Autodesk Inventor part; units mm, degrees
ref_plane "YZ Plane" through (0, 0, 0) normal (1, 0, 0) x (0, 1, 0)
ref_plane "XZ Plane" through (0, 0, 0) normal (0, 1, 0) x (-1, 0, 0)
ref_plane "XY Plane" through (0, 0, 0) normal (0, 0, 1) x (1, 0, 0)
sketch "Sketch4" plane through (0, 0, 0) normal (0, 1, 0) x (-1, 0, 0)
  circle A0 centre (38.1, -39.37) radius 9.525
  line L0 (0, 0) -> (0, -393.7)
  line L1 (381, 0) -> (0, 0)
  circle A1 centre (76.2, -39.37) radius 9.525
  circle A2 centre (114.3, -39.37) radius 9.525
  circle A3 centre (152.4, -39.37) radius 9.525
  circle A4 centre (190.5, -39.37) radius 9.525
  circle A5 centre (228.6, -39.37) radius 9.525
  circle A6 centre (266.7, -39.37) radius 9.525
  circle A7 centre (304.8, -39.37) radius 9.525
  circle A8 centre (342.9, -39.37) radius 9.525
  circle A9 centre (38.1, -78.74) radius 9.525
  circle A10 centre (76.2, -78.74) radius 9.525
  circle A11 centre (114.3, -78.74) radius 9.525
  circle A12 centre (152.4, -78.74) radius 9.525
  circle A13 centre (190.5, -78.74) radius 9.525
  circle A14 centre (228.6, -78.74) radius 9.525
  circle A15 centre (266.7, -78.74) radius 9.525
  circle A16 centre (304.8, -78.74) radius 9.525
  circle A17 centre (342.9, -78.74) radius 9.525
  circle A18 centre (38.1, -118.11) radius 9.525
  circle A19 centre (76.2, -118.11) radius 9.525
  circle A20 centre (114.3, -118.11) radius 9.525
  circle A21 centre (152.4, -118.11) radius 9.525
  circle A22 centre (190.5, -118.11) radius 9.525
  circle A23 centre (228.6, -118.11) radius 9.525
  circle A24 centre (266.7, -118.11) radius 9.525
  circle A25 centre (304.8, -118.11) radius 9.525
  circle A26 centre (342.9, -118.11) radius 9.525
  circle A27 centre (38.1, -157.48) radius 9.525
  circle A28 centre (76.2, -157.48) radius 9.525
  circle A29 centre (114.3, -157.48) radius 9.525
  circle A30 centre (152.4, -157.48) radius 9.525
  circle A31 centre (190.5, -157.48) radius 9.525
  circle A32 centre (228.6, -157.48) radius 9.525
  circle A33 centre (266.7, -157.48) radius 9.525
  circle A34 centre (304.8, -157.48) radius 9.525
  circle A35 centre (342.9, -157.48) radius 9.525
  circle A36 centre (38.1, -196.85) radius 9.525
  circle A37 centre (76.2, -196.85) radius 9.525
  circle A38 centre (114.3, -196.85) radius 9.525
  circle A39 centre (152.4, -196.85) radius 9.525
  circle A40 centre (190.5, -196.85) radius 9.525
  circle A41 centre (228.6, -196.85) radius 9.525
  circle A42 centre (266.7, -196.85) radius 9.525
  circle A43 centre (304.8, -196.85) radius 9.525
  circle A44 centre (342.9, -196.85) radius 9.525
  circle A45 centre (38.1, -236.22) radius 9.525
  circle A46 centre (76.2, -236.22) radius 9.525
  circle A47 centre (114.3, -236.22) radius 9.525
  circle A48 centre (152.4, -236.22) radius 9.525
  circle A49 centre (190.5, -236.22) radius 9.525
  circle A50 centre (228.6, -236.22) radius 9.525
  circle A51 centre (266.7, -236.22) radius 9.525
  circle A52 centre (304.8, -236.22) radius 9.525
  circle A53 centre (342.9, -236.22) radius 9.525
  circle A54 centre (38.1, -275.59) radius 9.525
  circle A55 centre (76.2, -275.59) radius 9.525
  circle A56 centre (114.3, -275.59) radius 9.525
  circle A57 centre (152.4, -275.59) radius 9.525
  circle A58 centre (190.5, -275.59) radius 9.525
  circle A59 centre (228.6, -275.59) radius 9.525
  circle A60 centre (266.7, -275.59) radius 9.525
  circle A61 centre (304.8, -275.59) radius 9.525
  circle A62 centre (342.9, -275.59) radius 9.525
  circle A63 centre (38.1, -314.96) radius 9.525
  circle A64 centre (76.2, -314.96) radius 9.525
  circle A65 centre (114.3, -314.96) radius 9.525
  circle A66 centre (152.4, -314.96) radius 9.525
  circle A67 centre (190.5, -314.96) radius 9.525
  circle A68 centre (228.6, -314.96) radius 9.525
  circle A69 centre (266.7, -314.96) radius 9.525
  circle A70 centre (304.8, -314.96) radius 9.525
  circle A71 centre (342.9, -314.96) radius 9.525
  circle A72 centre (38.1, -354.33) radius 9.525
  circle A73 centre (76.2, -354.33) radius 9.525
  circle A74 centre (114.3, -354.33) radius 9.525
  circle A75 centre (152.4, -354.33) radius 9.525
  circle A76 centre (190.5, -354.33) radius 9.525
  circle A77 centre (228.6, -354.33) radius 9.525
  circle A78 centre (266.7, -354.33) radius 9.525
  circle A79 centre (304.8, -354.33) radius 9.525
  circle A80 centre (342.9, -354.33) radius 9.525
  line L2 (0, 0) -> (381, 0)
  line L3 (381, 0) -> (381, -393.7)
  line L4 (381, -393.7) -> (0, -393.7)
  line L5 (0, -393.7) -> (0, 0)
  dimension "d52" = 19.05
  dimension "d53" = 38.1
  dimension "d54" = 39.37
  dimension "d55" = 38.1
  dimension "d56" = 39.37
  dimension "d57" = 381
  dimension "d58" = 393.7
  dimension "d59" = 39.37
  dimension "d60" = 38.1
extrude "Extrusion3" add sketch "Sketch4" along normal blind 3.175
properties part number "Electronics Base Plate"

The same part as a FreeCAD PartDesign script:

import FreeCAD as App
import Part
import Sketcher

V = App.Vector
Q = App.Units.Quantity

doc = App.newDocument("Part")
body = doc.addObject("PartDesign::Body", "Body")

# Sketch on XZ plane
sketch1 = doc.addObject("Sketcher::SketchObject", "Sketch")
body.addObject(sketch1)
sketch1.AttachmentSupport = (doc.XZ_Plane, [""])
sketch1.MapMode = "FlatFace"
sketch1.addGeometry(Part.LineSegment(V(-381, 0, 0), V(0, 0, 0)), False)
sketch1.addGeometry(Part.LineSegment(V(0, 0, 0), V(0, -394, 0)), False)
sketch1.addGeometry(Part.LineSegment(V(0, -394, 0), V(-381, -394, 0)), False)
sketch1.addGeometry(Part.LineSegment(V(-381, -394, 0), V(-381, 0, 0)), False)
sketch1.addGeometry(Part.Circle(V(-38, -354, 0), V(0, 0, 1), 10), False)
sketch1.addGeometry(Part.Circle(V(-76, -354, 0), V(0, 0, 1), 10), False)
sketch1.addGeometry(Part.Circle(V(-38, -315, 0), V(0, 0, 1), 10), False)
sketch1.addGeometry(Part.Circle(V(-76, -315, 0), V(0, 0, 1), 10), False)
sketch1.addGeometry(Part.Circle(V(-114, -354, 0), V(0, 0, 1), 10), False)
sketch1.addGeometry(Part.Circle(V(-152, -354, 0), V(0, 0, 1), 10), False)
sketch1.addGeometry(Part.Circle(V(-114, -315, 0), V(0, 0, 1), 10), False)
sketch1.addGeometry(Part.Circle(V(-152, -315, 0), V(0, 0, 1), 10), False)
sketch1.addGeometry(Part.Circle(V(-38, -276, 0), V(0, 0, 1), 10), False)
sketch1.addGeometry(Part.Circle(V(-76, -276, 0), V(0, 0, 1), 10), False)
sketch1.addGeometry(Part.Circle(V(-38, -236, 0), V(0, 0, 1), 10), False)
sketch1.addGeometry(Part.Circle(V(-76, -236, 0), V(0, 0, 1), 10), False)
sketch1.addGeometry(Part.Circle(V(-114, -276, 0), V(0, 0, 1), 10), False)
sketch1.addGeometry(Part.Circle(V(-152, -276, 0), V(0, 0, 1), 10), False)
sketch1.addGeometry(Part.Circle(V(-114, -236, 0), V(0, 0, 1), 10), False)
sketch1.addGeometry(Part.Circle(V(-152, -236, 0), V(0, 0, 1), 10), False)
sketch1.addGeometry(Part.Circle(V(-190, -354, 0), V(0, 0, 1), 10), False)
sketch1.addGeometry(Part.Circle(V(-229, -354, 0), V(0, 0, 1), 10), False)
sketch1.addGeometry(Part.Circle(V(-267, -354, 0), V(0, 0, 1), 10), False)
sketch1.addGeometry(Part.Circle(V(-190, -315, 0), V(0, 0, 1), 10), False)
sketch1.addGeometry(Part.Circle(V(-229, -315, 0), V(0, 0, 1), 10), False)
sketch1.addGeometry(Part.Circle(V(-267, -315, 0), V(0, 0, 1), 10), False)
sketch1.addGeometry(Part.Circle(V(-305, -354, 0), V(0, 0, 1), 10), False)
sketch1.addGeometry(Part.Circle(V(-343, -354, 0), V(0, 0, 1), 10), False)
sketch1.addGeometry(Part.Circle(V(-305, -315, 0), V(0, 0, 1), 10), False)
sketch1.addGeometry(Part.Circle(V(-343, -315, 0), V(0, 0, 1), 10), False)
sketch1.addGeometry(Part.Circle(V(-190, -276, 0), V(0, 0, 1), 10), False)
sketch1.addGeometry(Part.Circle(V(-229, -276, 0), V(0, 0, 1), 10), False)
sketch1.addGeometry(Part.Circle(V(-267, -276, 0), V(0, 0, 1), 10), False)
sketch1.addGeometry(Part.Circle(V(-190, -236, 0), V(0, 0, 1), 10), False)
sketch1.addGeometry(Part.Circle(V(-229, -236, 0), V(0, 0, 1), 10), False)
sketch1.addGeometry(Part.Circle(V(-267, -236, 0), V(0, 0, 1), 10), False)
sketch1.addGeometry(Part.Circle(V(-305, -276, 0), V(0, 0, 1), 10), False)
sketch1.addGeometry(Part.Circle(V(-343, -276, 0), V(0, 0, 1), 10), False)
sketch1.addGeometry(Part.Circle(V(-305, -236, 0), V(0, 0, 1), 10), False)
sketch1.addGeometry(Part.Circle(V(-343, -236, 0), V(0, 0, 1), 10), False)
sketch1.addGeometry(Part.Circle(V(-38, -197, 0), V(0, 0, 1), 10), False)
sketch1.addGeometry(Part.Circle(V(-38, -157, 0), V(0, 0, 1), 10), False)
sketch1.addGeometry(Part.Circle(V(-76, -197, 0), V(0, 0, 1), 10), False)
sketch1.addGeometry(Part.Circle(V(-76, -157, 0), V(0, 0, 1), 10), False)
sketch1.addGeometry(Part.Circle(V(-38, -118, 0), V(0, 0, 1), 10), False)
sketch1.addGeometry(Part.Circle(V(-76, -118, 0), V(0, 0, 1), 10), False)
sketch1.addGeometry(Part.Circle(V(-114, -197, 0), V(0, 0, 1), 10), False)
sketch1.addGeometry(Part.Circle(V(-114, -157, 0), V(0, 0, 1), 10), False)
sketch1.addGeometry(Part.Circle(V(-152, -197, 0), V(0, 0, 1), 10), False)
sketch1.addGeometry(Part.Circle(V(-152, -157, 0), V(0, 0, 1), 10), False)
sketch1.addGeometry(Part.Circle(V(-114, -118, 0), V(0, 0, 1), 10), False)
sketch1.addGeometry(Part.Circle(V(-152, -118, 0), V(0, 0, 1), 10), False)
sketch1.addGeometry(Part.Circle(V(-38, -79, 0), V(0, 0, 1), 10), False)
sketch1.addGeometry(Part.Circle(V(-76, -79, 0), V(0, 0, 1), 10), False)
sketch1.addGeometry(Part.Circle(V(-38, -39, 0), V(0, 0, 1), 10), False)
sketch1.addGeometry(Part.Circle(V(-76, -39, 0), V(0, 0, 1), 10), False)
sketch1.addGeometry(Part.Circle(V(-114, -79, 0), V(0, 0, 1), 10), False)
sketch1.addGeometry(Part.Circle(V(-152, -79, 0), V(0, 0, 1), 10), False)
sketch1.addGeometry(Part.Circle(V(-114, -39, 0), V(0, 0, 1), 10), False)
sketch1.addGeometry(Part.Circle(V(-152, -39, 0), V(0, 0, 1), 10), False)
sketch1.addGeometry(Part.Circle(V(-190, -197, 0), V(0, 0, 1), 10), False)
sketch1.addGeometry(Part.Circle(V(-229, -197, 0), V(0, 0, 1), 10), False)
sketch1.addGeometry(Part.Circle(V(-190, -157, 0), V(0, 0, 1), 10), False)
sketch1.addGeometry(Part.Circle(V(-229, -157, 0), V(0, 0, 1), 10), False)
sketch1.addGeometry(Part.Circle(V(-267, -197, 0), V(0, 0, 1), 10), False)
sketch1.addGeometry(Part.Circle(V(-267, -157, 0), V(0, 0, 1), 10), False)
sketch1.addGeometry(Part.Circle(V(-190, -118, 0), V(0, 0, 1), 10), False)
sketch1.addGeometry(Part.Circle(V(-229, -118, 0), V(0, 0, 1), 10), False)
sketch1.addGeometry(Part.Circle(V(-267, -118, 0), V(0, 0, 1), 10), False)
sketch1.addGeometry(Part.Circle(V(-305, -197, 0), V(0, 0, 1), 10), False)
sketch1.addGeometry(Part.Circle(V(-305, -157, 0), V(0, 0, 1), 10), False)
sketch1.addGeometry(Part.Circle(V(-343, -197, 0), V(0, 0, 1), 10), False)
sketch1.addGeometry(Part.Circle(V(-343, -157, 0), V(0, 0, 1), 10), False)
sketch1.addGeometry(Part.Circle(V(-305, -118, 0), V(0, 0, 1), 10), False)
sketch1.addGeometry(Part.Circle(V(-343, -118, 0), V(0, 0, 1), 10), False)
sketch1.addGeometry(Part.Circle(V(-190, -79, 0), V(0, 0, 1), 10), False)
sketch1.addGeometry(Part.Circle(V(-229, -79, 0), V(0, 0, 1), 10), False)
sketch1.addGeometry(Part.Circle(V(-267, -79, 0), V(0, 0, 1), 10), False)
sketch1.addGeometry(Part.Circle(V(-190, -39, 0), V(0, 0, 1), 10), False)
sketch1.addGeometry(Part.Circle(V(-229, -39, 0), V(0, 0, 1), 10), False)
sketch1.addGeometry(Part.Circle(V(-267, -39, 0), V(0, 0, 1), 10), False)
sketch1.addGeometry(Part.Circle(V(-305, -79, 0), V(0, 0, 1), 10), False)
sketch1.addGeometry(Part.Circle(V(-343, -79, 0), V(0, 0, 1), 10), False)
sketch1.addGeometry(Part.Circle(V(-305, -39, 0), V(0, 0, 1), 10), False)
sketch1.addGeometry(Part.Circle(V(-343, -39, 0), V(0, 0, 1), 10), False)
sketch1.addConstraint(Sketcher.Constraint("Coincident", 0, 2, 1, 1))
sketch1.addConstraint(Sketcher.Constraint("Coincident", 1, 2, 2, 1))
sketch1.addConstraint(Sketcher.Constraint("Coincident", 2, 2, 3, 1))
sketch1.addConstraint(Sketcher.Constraint("Coincident", 3, 2, 0, 1))
sketch1.addConstraint(Sketcher.Constraint("Horizontal", 0))
sketch1.addConstraint(Sketcher.Constraint("Vertical", 1))
sketch1.addConstraint(Sketcher.Constraint("Horizontal", 2))
sketch1.addConstraint(Sketcher.Constraint("Vertical", 3))
sketch1.addConstraint(Sketcher.Constraint("Coincident", 0, 2, -1, 1))
sketch1.addConstraint(Sketcher.Constraint("Equal", 4, 5))
sketch1.addConstraint(Sketcher.Constraint("Equal", 5, 6))
sketch1.addConstraint(Sketcher.Constraint("Equal", 6, 7))
sketch1.addConstraint(Sketcher.Constraint("Equal", 7, 8))
sketch1.addConstraint(Sketcher.Constraint("Equal", 8, 9))
sketch1.addConstraint(Sketcher.Constraint("Equal", 9, 10))
sketch1.addConstraint(Sketcher.Constraint("Equal", 10, 11))
sketch1.addConstraint(Sketcher.Constraint("Equal", 11, 12))
sketch1.addConstraint(Sketcher.Constraint("Equal", 12, 13))
sketch1.addConstraint(Sketcher.Constraint("Equal", 13, 14))
sketch1.addConstraint(Sketcher.Constraint("Equal", 14, 15))
sketch1.addConstraint(Sketcher.Constraint("Equal", 15, 16))
sketch1.addConstraint(Sketcher.Constraint("Equal", 16, 17))
sketch1.addConstraint(Sketcher.Constraint("Equal", 17, 18))
sketch1.addConstraint(Sketcher.Constraint("Equal", 18, 19))
sketch1.addConstraint(Sketcher.Constraint("Equal", 19, 20))
sketch1.addConstraint(Sketcher.Constraint("Equal", 20, 21))
sketch1.addConstraint(Sketcher.Constraint("Equal", 21, 22))
sketch1.addConstraint(Sketcher.Constraint("Equal", 22, 23))
sketch1.addConstraint(Sketcher.Constraint("Equal", 23, 24))
sketch1.addConstraint(Sketcher.Constraint("Equal", 24, 25))
sketch1.addConstraint(Sketcher.Constraint("Equal", 25, 26))
sketch1.addConstraint(Sketcher.Constraint("Equal", 26, 27))
sketch1.addConstraint(Sketcher.Constraint("Equal", 27, 28))
sketch1.addConstraint(Sketcher.Constraint("Equal", 28, 29))
sketch1.addConstraint(Sketcher.Constraint("Equal", 29, 30))
sketch1.addConstraint(Sketcher.Constraint("Equal", 30, 31))
sketch1.addConstraint(Sketcher.Constraint("Equal", 31, 32))
sketch1.addConstraint(Sketcher.Constraint("Equal", 32, 33))
sketch1.addConstraint(Sketcher.Constraint("Equal", 33, 34))
sketch1.addConstraint(Sketcher.Constraint("Equal", 34, 35))
sketch1.addConstraint(Sketcher.Constraint("Equal", 35, 36))
sketch1.addConstraint(Sketcher.Constraint("Equal", 36, 37))
sketch1.addConstraint(Sketcher.Constraint("Equal", 37, 38))
sketch1.addConstraint(Sketcher.Constraint("Equal", 38, 39))
sketch1.addConstraint(Sketcher.Constraint("Equal", 39, 40))
sketch1.addConstraint(Sketcher.Constraint("Equal", 40, 41))
sketch1.addConstraint(Sketcher.Constraint("Equal", 41, 42))
sketch1.addConstraint(Sketcher.Constraint("Equal", 42, 43))
sketch1.addConstraint(Sketcher.Constraint("Equal", 43, 44))
sketch1.addConstraint(Sketcher.Constraint("Equal", 44, 45))
sketch1.addConstraint(Sketcher.Constraint("Equal", 45, 46))
sketch1.addConstraint(Sketcher.Constraint("Equal", 46, 47))
sketch1.addConstraint(Sketcher.Constraint("Equal", 47, 48))
sketch1.addConstraint(Sketcher.Constraint("Equal", 48, 49))
sketch1.addConstraint(Sketcher.Constraint("Equal", 49, 50))
sketch1.addConstraint(Sketcher.Constraint("Equal", 50, 51))
sketch1.addConstraint(Sketcher.Constraint("Equal", 51, 52))
sketch1.addConstraint(Sketcher.Constraint("Equal", 52, 53))
sketch1.addConstraint(Sketcher.Constraint("Equal", 53, 54))
sketch1.addConstraint(Sketcher.Constraint("Equal", 54, 55))
sketch1.addConstraint(Sketcher.Constraint("Equal", 55, 56))
sketch1.addConstraint(Sketcher.Constraint("Equal", 56, 57))
sketch1.addConstraint(Sketcher.Constraint("Equal", 57, 58))
sketch1.addConstraint(Sketcher.Constraint("Equal", 58, 59))
sketch1.addConstraint(Sketcher.Constraint("Equal", 59, 60))
sketch1.addConstraint(Sketcher.Constraint("Equal", 60, 61))
sketch1.addConstraint(Sketcher.Constraint("Equal", 61, 62))
sketch1.addConstraint(Sketcher.Constraint("Equal", 62, 63))
sketch1.addConstraint(Sketcher.Constraint("Equal", 63, 64))
sketch1.addConstraint(Sketcher.Constraint("Equal", 64, 65))
sketch1.addConstraint(Sketcher.Constraint("Equal", 65, 66))
sketch1.addConstraint(Sketcher.Constraint("Equal", 66, 67))
sketch1.addConstraint(Sketcher.Constraint("Equal", 67, 68))
sketch1.addConstraint(Sketcher.Constraint("Equal", 68, 69))
sketch1.addConstraint(Sketcher.Constraint("Equal", 69, 70))
sketch1.addConstraint(Sketcher.Constraint("Equal", 70, 71))
sketch1.addConstraint(Sketcher.Constraint("Equal", 71, 72))
sketch1.addConstraint(Sketcher.Constraint("Equal", 72, 73))
sketch1.addConstraint(Sketcher.Constraint("Equal", 73, 74))
sketch1.addConstraint(Sketcher.Constraint("Equal", 74, 75))
sketch1.addConstraint(Sketcher.Constraint("Equal", 75, 76))
sketch1.addConstraint(Sketcher.Constraint("Equal", 76, 77))
sketch1.addConstraint(Sketcher.Constraint("Equal", 77, 78))
sketch1.addConstraint(Sketcher.Constraint("Equal", 78, 79))
sketch1.addConstraint(Sketcher.Constraint("Equal", 79, 80))
sketch1.addConstraint(Sketcher.Constraint("Equal", 80, 81))
sketch1.addConstraint(Sketcher.Constraint("Equal", 81, 82))
sketch1.addConstraint(Sketcher.Constraint("Equal", 82, 83))
sketch1.addConstraint(Sketcher.Constraint("Equal", 83, 84))
sketch1.addConstraint(Sketcher.Constraint("Horizontal", 4, 3, 5, 3))
sketch1.addConstraint(Sketcher.Constraint("Horizontal", 6, 3, 7, 3))
sketch1.addConstraint(Sketcher.Constraint("Horizontal", 5, 3, 8, 3))
sketch1.addConstraint(Sketcher.Constraint("Horizontal", 8, 3, 9, 3))
sketch1.addConstraint(Sketcher.Constraint("Horizontal", 7, 3, 10, 3))
sketch1.addConstraint(Sketcher.Constraint("Horizontal", 10, 3, 11, 3))
sketch1.addConstraint(Sketcher.Constraint("Horizontal", 12, 3, 13, 3))
sketch1.addConstraint(Sketcher.Constraint("Horizontal", 14, 3, 15, 3))
sketch1.addConstraint(Sketcher.Constraint("Horizontal", 13, 3, 16, 3))
sketch1.addConstraint(Sketcher.Constraint("Horizontal", 16, 3, 17, 3))
sketch1.addConstraint(Sketcher.Constraint("Horizontal", 15, 3, 18, 3))
sketch1.addConstraint(Sketcher.Constraint("Horizontal", 18, 3, 19, 3))
sketch1.addConstraint(Sketcher.Constraint("Horizontal", 9, 3, 20, 3))
sketch1.addConstraint(Sketcher.Constraint("Horizontal", 20, 3, 21, 3))
sketch1.addConstraint(Sketcher.Constraint("Horizontal", 21, 3, 22, 3))
sketch1.addConstraint(Sketcher.Constraint("Horizontal", 11, 3, 23, 3))
sketch1.addConstraint(Sketcher.Constraint("Horizontal", 23, 3, 24, 3))
sketch1.addConstraint(Sketcher.Constraint("Horizontal", 24, 3, 25, 3))
sketch1.addConstraint(Sketcher.Constraint("Horizontal", 22, 3, 26, 3))
sketch1.addConstraint(Sketcher.Constraint("Horizontal", 26, 3, 27, 3))
sketch1.addConstraint(Sketcher.Constraint("Horizontal", 25, 3, 28, 3))
sketch1.addConstraint(Sketcher.Constraint("Horizontal", 28, 3, 29, 3))
sketch1.addConstraint(Sketcher.Constraint("Horizontal", 17, 3, 30, 3))
sketch1.addConstraint(Sketcher.Constraint("Horizontal", 30, 3, 31, 3))
sketch1.addConstraint(Sketcher.Constraint("Horizontal", 31, 3, 32, 3))
sketch1.addConstraint(Sketcher.Constraint("Horizontal", 19, 3, 33, 3))
sketch1.addConstraint(Sketcher.Constraint("Horizontal", 33, 3, 34, 3))
sketch1.addConstraint(Sketcher.Constraint("Horizontal", 34, 3, 35, 3))
sketch1.addConstraint(Sketcher.Constraint("Horizontal", 32, 3, 36, 3))
sketch1.addConstraint(Sketcher.Constraint("Horizontal", 36, 3, 37, 3))
sketch1.addConstraint(Sketcher.Constraint("Horizontal", 35, 3, 38, 3))
sketch1.addConstraint(Sketcher.Constraint("Horizontal", 38, 3, 39, 3))
sketch1.addConstraint(Sketcher.Constraint("Horizontal", 40, 3, 42, 3))
sketch1.addConstraint(Sketcher.Constraint("Horizontal", 41, 3, 43, 3))
sketch1.addConstraint(Sketcher.Constraint("Horizontal", 44, 3, 45, 3))
sketch1.addConstraint(Sketcher.Constraint("Horizontal", 42, 3, 46, 3))
sketch1.addConstraint(Sketcher.Constraint("Horizontal", 43, 3, 47, 3))
sketch1.addConstraint(Sketcher.Constraint("Horizontal", 46, 3, 48, 3))
sketch1.addConstraint(Sketcher.Constraint("Horizontal", 47, 3, 49, 3))
sketch1.addConstraint(Sketcher.Constraint("Horizontal", 45, 3, 50, 3))
sketch1.addConstraint(Sketcher.Constraint("Horizontal", 50, 3, 51, 3))
sketch1.addConstraint(Sketcher.Constraint("Horizontal", 52, 3, 53, 3))
sketch1.addConstraint(Sketcher.Constraint("Horizontal", 54, 3, 55, 3))
sketch1.addConstraint(Sketcher.Constraint("Horizontal", 53, 3, 56, 3))
sketch1.addConstraint(Sketcher.Constraint("Horizontal", 56, 3, 57, 3))
sketch1.addConstraint(Sketcher.Constraint("Horizontal", 55, 3, 58, 3))
sketch1.addConstraint(Sketcher.Constraint("Horizontal", 58, 3, 59, 3))
sketch1.addConstraint(Sketcher.Constraint("Horizontal", 48, 3, 60, 3))
sketch1.addConstraint(Sketcher.Constraint("Horizontal", 60, 3, 61, 3))
sketch1.addConstraint(Sketcher.Constraint("Horizontal", 49, 3, 62, 3))
sketch1.addConstraint(Sketcher.Constraint("Horizontal", 62, 3, 63, 3))
sketch1.addConstraint(Sketcher.Constraint("Horizontal", 61, 3, 64, 3))
sketch1.addConstraint(Sketcher.Constraint("Horizontal", 63, 3, 65, 3))
sketch1.addConstraint(Sketcher.Constraint("Horizontal", 51, 3, 66, 3))
sketch1.addConstraint(Sketcher.Constraint("Horizontal", 66, 3, 67, 3))
sketch1.addConstraint(Sketcher.Constraint("Horizontal", 67, 3, 68, 3))
sketch1.addConstraint(Sketcher.Constraint("Horizontal", 64, 3, 69, 3))
sketch1.addConstraint(Sketcher.Constraint("Horizontal", 65, 3, 70, 3))
sketch1.addConstraint(Sketcher.Constraint("Horizontal", 69, 3, 71, 3))
sketch1.addConstraint(Sketcher.Constraint("Horizontal", 70, 3, 72, 3))
sketch1.addConstraint(Sketcher.Constraint("Horizontal", 68, 3, 73, 3))
sketch1.addConstraint(Sketcher.Constraint("Horizontal", 73, 3, 74, 3))
sketch1.addConstraint(Sketcher.Constraint("Horizontal", 57, 3, 75, 3))
sketch1.addConstraint(Sketcher.Constraint("Horizontal", 75, 3, 76, 3))
sketch1.addConstraint(Sketcher.Constraint("Horizontal", 76, 3, 77, 3))
sketch1.addConstraint(Sketcher.Constraint("Horizontal", 59, 3, 78, 3))
sketch1.addConstraint(Sketcher.Constraint("Horizontal", 78, 3, 79, 3))
sketch1.addConstraint(Sketcher.Constraint("Horizontal", 79, 3, 80, 3))
sketch1.addConstraint(Sketcher.Constraint("Horizontal", 77, 3, 81, 3))
sketch1.addConstraint(Sketcher.Constraint("Horizontal", 81, 3, 82, 3))
sketch1.addConstraint(Sketcher.Constraint("Horizontal", 80, 3, 83, 3))
sketch1.addConstraint(Sketcher.Constraint("Horizontal", 83, 3, 84, 3))
sketch1.addConstraint(Sketcher.Constraint("Vertical", 4, 3, 6, 3))
sketch1.addConstraint(Sketcher.Constraint("Vertical", 5, 3, 7, 3))
sketch1.addConstraint(Sketcher.Constraint("Vertical", 8, 3, 10, 3))
sketch1.addConstraint(Sketcher.Constraint("Vertical", 9, 3, 11, 3))
sketch1.addConstraint(Sketcher.Constraint("Vertical", 6, 3, 12, 3))
sketch1.addConstraint(Sketcher.Constraint("Vertical", 7, 3, 13, 3))
sketch1.addConstraint(Sketcher.Constraint("Vertical", 12, 3, 14, 3))
sketch1.addConstraint(Sketcher.Constraint("Vertical", 13, 3, 15, 3))
sketch1.addConstraint(Sketcher.Constraint("Vertical", 10, 3, 16, 3))
sketch1.addConstraint(Sketcher.Constraint("Vertical", 11, 3, 17, 3))
sketch1.addConstraint(Sketcher.Constraint("Vertical", 16, 3, 18, 3))
sketch1.addConstraint(Sketcher.Constraint("Vertical", 17, 3, 19, 3))
sketch1.addConstraint(Sketcher.Constraint("Vertical", 20, 3, 23, 3))
sketch1.addConstraint(Sketcher.Constraint("Vertical", 21, 3, 24, 3))
sketch1.addConstraint(Sketcher.Constraint("Vertical", 22, 3, 25, 3))
sketch1.addConstraint(Sketcher.Constraint("Vertical", 26, 3, 28, 3))
sketch1.addConstraint(Sketcher.Constraint("Vertical", 27, 3, 29, 3))
sketch1.addConstraint(Sketcher.Constraint("Vertical", 23, 3, 30, 3))
sketch1.addConstraint(Sketcher.Constraint("Vertical", 24, 3, 31, 3))
sketch1.addConstraint(Sketcher.Constraint("Vertical", 25, 3, 32, 3))
sketch1.addConstraint(Sketcher.Constraint("Vertical", 30, 3, 33, 3))
sketch1.addConstraint(Sketcher.Constraint("Vertical", 31, 3, 34, 3))
sketch1.addConstraint(Sketcher.Constraint("Vertical", 32, 3, 35, 3))
sketch1.addConstraint(Sketcher.Constraint("Vertical", 28, 3, 36, 3))
sketch1.addConstraint(Sketcher.Constraint("Vertical", 29, 3, 37, 3))
sketch1.addConstraint(Sketcher.Constraint("Vertical", 36, 3, 38, 3))
sketch1.addConstraint(Sketcher.Constraint("Vertical", 37, 3, 39, 3))
sketch1.addConstraint(Sketcher.Constraint("Vertical", 14, 3, 40, 3))
sketch1.addConstraint(Sketcher.Constraint("Vertical", 40, 3, 41, 3))
sketch1.addConstraint(Sketcher.Constraint("Vertical", 15, 3, 42, 3))
sketch1.addConstraint(Sketcher.Constraint("Vertical", 42, 3, 43, 3))
sketch1.addConstraint(Sketcher.Constraint("Vertical", 41, 3, 44, 3))
sketch1.addConstraint(Sketcher.Constraint("Vertical", 43, 3, 45, 3))
sketch1.addConstraint(Sketcher.Constraint("Vertical", 18, 3, 46, 3))
sketch1.addConstraint(Sketcher.Constraint("Vertical", 46, 3, 47, 3))
sketch1.addConstraint(Sketcher.Constraint("Vertical", 19, 3, 48, 3))
sketch1.addConstraint(Sketcher.Constraint("Vertical", 48, 3, 49, 3))
sketch1.addConstraint(Sketcher.Constraint("Vertical", 47, 3, 50, 3))
sketch1.addConstraint(Sketcher.Constraint("Vertical", 49, 3, 51, 3))
sketch1.addConstraint(Sketcher.Constraint("Vertical", 44, 3, 52, 3))
sketch1.addConstraint(Sketcher.Constraint("Vertical", 45, 3, 53, 3))
sketch1.addConstraint(Sketcher.Constraint("Vertical", 52, 3, 54, 3))
sketch1.addConstraint(Sketcher.Constraint("Vertical", 53, 3, 55, 3))
sketch1.addConstraint(Sketcher.Constraint("Vertical", 50, 3, 56, 3))
sketch1.addConstraint(Sketcher.Constraint("Vertical", 51, 3, 57, 3))
sketch1.addConstraint(Sketcher.Constraint("Vertical", 56, 3, 58, 3))
sketch1.addConstraint(Sketcher.Constraint("Vertical", 57, 3, 59, 3))
sketch1.addConstraint(Sketcher.Constraint("Vertical", 33, 3, 60, 3))
sketch1.addConstraint(Sketcher.Constraint("Vertical", 34, 3, 61, 3))
sketch1.addConstraint(Sketcher.Constraint("Vertical", 60, 3, 62, 3))
sketch1.addConstraint(Sketcher.Constraint("Vertical", 61, 3, 63, 3))
sketch1.addConstraint(Sketcher.Constraint("Vertical", 35, 3, 64, 3))
sketch1.addConstraint(Sketcher.Constraint("Vertical", 64, 3, 65, 3))
sketch1.addConstraint(Sketcher.Constraint("Vertical", 62, 3, 66, 3))
sketch1.addConstraint(Sketcher.Constraint("Vertical", 63, 3, 67, 3))
sketch1.addConstraint(Sketcher.Constraint("Vertical", 65, 3, 68, 3))
sketch1.addConstraint(Sketcher.Constraint("Vertical", 38, 3, 69, 3))
sketch1.addConstraint(Sketcher.Constraint("Vertical", 69, 3, 70, 3))
sketch1.addConstraint(Sketcher.Constraint("Vertical", 39, 3, 71, 3))
sketch1.addConstraint(Sketcher.Constraint("Vertical", 71, 3, 72, 3))
sketch1.addConstraint(Sketcher.Constraint("Vertical", 70, 3, 73, 3))
sketch1.addConstraint(Sketcher.Constraint("Vertical", 72, 3, 74, 3))
sketch1.addConstraint(Sketcher.Constraint("Vertical", 66, 3, 75, 3))
sketch1.addConstraint(Sketcher.Constraint("Vertical", 67, 3, 76, 3))
sketch1.addConstraint(Sketcher.Constraint("Vertical", 68, 3, 77, 3))
sketch1.addConstraint(Sketcher.Constraint("Vertical", 75, 3, 78, 3))
sketch1.addConstraint(Sketcher.Constraint("Vertical", 76, 3, 79, 3))
sketch1.addConstraint(Sketcher.Constraint("Vertical", 77, 3, 80, 3))
sketch1.addConstraint(Sketcher.Constraint("Vertical", 73, 3, 81, 3))
sketch1.addConstraint(Sketcher.Constraint("Vertical", 74, 3, 82, 3))
sketch1.addConstraint(Sketcher.Constraint("Vertical", 81, 3, 83, 3))
sketch1.addConstraint(Sketcher.Constraint("Vertical", 82, 3, 84, 3))
sketch1.addConstraint(Sketcher.Constraint("Diameter", 4, Q("0.75 in")))
sketch1.addConstraint(Sketcher.Constraint("DistanceX", 0, 1, 0, 2, Q("15 in")))
sketch1.addConstraint(Sketcher.Constraint("DistanceY", 1, 2, 1, 1, Q("15.5 in")))
sketch1.addConstraint(Sketcher.Constraint("DistanceX", 4, 3, -1, 1, Q("1.5 in")))
sketch1.addConstraint(Sketcher.Constraint("DistanceY", 54, 3, -1, 1, Q("1.55 in")))
sketch1.addConstraint(Sketcher.Constraint("DistanceX", 5, 3, -1, 1, Q("3 in")))
sketch1.addConstraint(Sketcher.Constraint("DistanceX", 9, 3, -1, 1, Q("6 in")))
sketch1.addConstraint(Sketcher.Constraint("DistanceX", 21, 3, -1, 1, Q("9 in")))
sketch1.addConstraint(Sketcher.Constraint("DistanceX", 26, 3, -1, 1, Q("12 in")))
sketch1.addConstraint(Sketcher.Constraint("DistanceY", 6, 3, -1, 1, Q("12.4 in")))
sketch1.addConstraint(Sketcher.Constraint("DistanceX", 8, 3, -1, 1, Q("4.5 in")))
sketch1.addConstraint(Sketcher.Constraint("DistanceY", 14, 3, -1, 1, Q("9.3 in")))
sketch1.addConstraint(Sketcher.Constraint("DistanceX", 20, 3, -1, 1, Q("7.5 in")))
sketch1.addConstraint(Sketcher.Constraint("DistanceX", 22, 3, -1, 1, Q("10.5 in")))
sketch1.addConstraint(Sketcher.Constraint("DistanceX", 27, 3, -1, 1, Q("13.5 in")))
sketch1.addConstraint(Sketcher.Constraint("DistanceY", 41, 3, -1, 1, Q("6.2 in")))
sketch1.addConstraint(Sketcher.Constraint("DistanceY", 52, 3, -1, 1, Q("3.1 in")))
sketch1.addConstraint(Sketcher.Constraint("DistanceY", 4, 3, -1, 1, Q("13.95 in")))
sketch1.addConstraint(Sketcher.Constraint("DistanceY", 12, 3, -1, 1, Q("10.85 in")))
sketch1.addConstraint(Sketcher.Constraint("DistanceY", 40, 3, -1, 1, Q("7.75 in")))
sketch1.addConstraint(Sketcher.Constraint("DistanceY", 44, 3, -1, 1, Q("4.65 in")))
pad1 = doc.addObject("PartDesign::Pad", "Pad")
body.addObject(pad1)
pad1.Profile = sketch1
pad1.Length = Q("0.125 in")
pad1.Reversed = True

doc.recompute()
